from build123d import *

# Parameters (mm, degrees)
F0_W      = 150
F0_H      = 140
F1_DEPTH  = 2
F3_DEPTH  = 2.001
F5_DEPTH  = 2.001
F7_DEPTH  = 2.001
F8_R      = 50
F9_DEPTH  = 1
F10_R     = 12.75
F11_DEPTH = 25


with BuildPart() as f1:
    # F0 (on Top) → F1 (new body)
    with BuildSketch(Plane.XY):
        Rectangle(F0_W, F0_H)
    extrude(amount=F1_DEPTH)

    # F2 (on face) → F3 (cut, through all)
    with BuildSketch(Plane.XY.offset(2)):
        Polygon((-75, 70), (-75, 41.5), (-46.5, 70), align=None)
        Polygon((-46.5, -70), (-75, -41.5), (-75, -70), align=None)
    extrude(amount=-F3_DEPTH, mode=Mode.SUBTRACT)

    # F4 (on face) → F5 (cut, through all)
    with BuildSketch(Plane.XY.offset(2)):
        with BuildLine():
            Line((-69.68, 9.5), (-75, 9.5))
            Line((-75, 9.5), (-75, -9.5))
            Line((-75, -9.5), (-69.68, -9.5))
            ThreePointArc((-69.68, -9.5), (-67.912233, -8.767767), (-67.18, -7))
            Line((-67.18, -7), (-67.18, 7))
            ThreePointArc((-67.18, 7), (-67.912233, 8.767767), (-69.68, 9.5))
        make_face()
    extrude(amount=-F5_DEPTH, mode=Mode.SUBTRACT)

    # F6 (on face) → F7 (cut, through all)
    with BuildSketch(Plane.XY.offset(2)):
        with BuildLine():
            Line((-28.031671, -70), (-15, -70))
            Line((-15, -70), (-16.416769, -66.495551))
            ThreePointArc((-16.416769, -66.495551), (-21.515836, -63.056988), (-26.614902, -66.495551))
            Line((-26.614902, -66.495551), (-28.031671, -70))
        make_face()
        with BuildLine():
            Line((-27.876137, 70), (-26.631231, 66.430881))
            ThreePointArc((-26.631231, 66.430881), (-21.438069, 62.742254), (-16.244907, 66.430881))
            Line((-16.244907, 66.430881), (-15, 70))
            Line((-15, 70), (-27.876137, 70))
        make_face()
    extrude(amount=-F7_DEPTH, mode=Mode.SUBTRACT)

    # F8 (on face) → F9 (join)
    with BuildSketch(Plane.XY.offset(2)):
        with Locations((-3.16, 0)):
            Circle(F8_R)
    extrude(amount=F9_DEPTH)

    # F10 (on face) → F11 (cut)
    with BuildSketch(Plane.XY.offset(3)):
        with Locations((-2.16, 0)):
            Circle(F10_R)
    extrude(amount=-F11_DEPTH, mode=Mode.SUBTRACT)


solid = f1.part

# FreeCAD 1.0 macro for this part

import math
import FreeCAD as App
import Part
import Sketcher

V = App.Vector
Q = App.Units.Quantity


def add_polygon(sketch, points):
    """Adds a closed chain of lines whose ends are joined by coincident constraints."""
    first, n = sketch.GeometryCount, len(points)
    for a, b in zip(points, points[1:] + points[:1]):
        sketch.addGeometry(Part.LineSegment(App.Vector(*a, 0), App.Vector(*b, 0)), False)
    for i in range(n):
        sketch.addConstraint(Sketcher.Constraint("Coincident", first + i, 2, first + (i + 1) % n, 1))

doc = App.newDocument("Part")
params = doc.addObject("Spreadsheet::Sheet", "Params")
for row, (alias, value) in enumerate([
    ("sketch1_width", "150 mm"),
    ("sketch1_height", "140 mm"),
    ("pad1_length", "2 mm"),
    ("sketch2_width", "28.5 mm"),
    ("sketch3_radius", "2.5 mm"),
    ("sketch3_height", "19 mm"),
    ("sketch3_width", "5.32 mm"),
    ("sketch4_radius", "5.5 mm"),
    ("sketch4_length", "3.78 mm"),
    ("sketch5_diameter", "100 mm"),
    ("pad2_length", "1 mm"),
    ("sketch6_diameter", "25.5 mm"),
    ("pocket4_length", "25 mm"),
], start=1):
    params.set(f"A{row}", alias)
    params.set(f"B{row}", "=" + value)
    params.setAlias(f"B{row}", alias)

body = doc.addObject("PartDesign::Body", "Body")

sketch1 = doc.addObject("Sketcher::SketchObject", "Sketch")
body.addObject(sketch1)
sketch1.AttachmentSupport = (doc.XY_Plane, [""])
sketch1.MapMode = "FlatFace"
add_polygon(sketch1, [(-75, 70), (-75, -70), (75, -70), (75, 70)])
sketch1.addConstraint(Sketcher.Constraint("Vertical", 0))
sketch1.addConstraint(Sketcher.Constraint("Horizontal", 1))
sketch1.addConstraint(Sketcher.Constraint("Vertical", 2))
sketch1.addConstraint(Sketcher.Constraint("Horizontal", 3))
sketch1.addConstraint(Sketcher.Constraint("Symmetric", 0, 2, 2, 2, -1, 1))
sketch1.addConstraint(Sketcher.Constraint("DistanceX", 1, 1, 1, 2, Q("150 mm")))
sketch1.addConstraint(Sketcher.Constraint("DistanceY", 0, 2, 0, 1, Q("140 mm")))
sketch1.setExpression("Constraints[9]", "Params.sketch1_width")
sketch1.setExpression("Constraints[10]", "Params.sketch1_height")
pad1 = doc.addObject("PartDesign::Pad", "Pad")
body.addObject(pad1)
pad1.Profile = sketch1
pad1.setExpression("Length", "Params.pad1_length")

sketch2 = doc.addObject("Sketcher::SketchObject", "Sketch001")
body.addObject(sketch2)
sketch2.AttachmentSupport = (doc.XY_Plane, [""])
sketch2.MapMode = "FlatFace"
sketch2.AttachmentOffset = App.Placement(V(0, 0, 2), App.Rotation())
add_polygon(sketch2, [(-75, 70), (-75, 42), (-46, 70)])
add_polygon(sketch2, [(-46, -70), (-75, -42), (-75, -70)])
sketch2.addConstraint(Sketcher.Constraint("Vertical", 0))
sketch2.addConstraint(Sketcher.Constraint("Horizontal", 2))
sketch2.addConstraint(Sketcher.Constraint("Vertical", 4))
sketch2.addConstraint(Sketcher.Constraint("Horizontal", 5))
sketch2.addConstraint(Sketcher.Constraint("Symmetric", 0, 2, 3, 2, -1))
sketch2.addConstraint(Sketcher.Constraint("Symmetric", 1, 2, 5, 2, -1))
sketch2.addConstraint(Sketcher.Constraint("Perpendicular", 1, 3))
sketch2.addConstraint(Sketcher.Constraint("DistanceX", 2, 2, 2, 1, Q("28.5 mm")))
sketch2.addConstraint(Sketcher.Constraint("DistanceX", 0, 2, -1, 1, Q("75 mm")))
sketch2.addConstraint(Sketcher.Constraint("DistanceY", -1, 1, 1, 2, Q("70 mm")))
sketch2.setExpression("Constraints[13]", "Params.sketch2_width")
pocket1 = doc.addObject("PartDesign::Pocket", "Pocket")
body.addObject(pocket1)
pocket1.Profile = sketch2
pocket1.Type = "ThroughAll"

sketch3 = doc.addObject("Sketcher::SketchObject", "Sketch002")
body.addObject(sketch3)
sketch3.AttachmentSupport = (doc.XY_Plane, [""])
sketch3.MapMode = "FlatFace"
sketch3.AttachmentOffset = App.Placement(V(0, 0, 2), App.Rotation())
sketch3.addGeometry(Part.LineSegment(V(-69.7, 9.5, 0), V(-75, 9.5, 0)), False)
sketch3.addGeometry(Part.LineSegment(V(-75, 9.5, 0), V(-75, -9.5, 0)), False)
sketch3.addGeometry(Part.LineSegment(V(-75, -9.5, 0), V(-69.7, -9.5, 0)), False)
sketch3.addGeometry(Part.ArcOfCircle(Part.Circle(V(-69.7, -7, 0), V(0, 0, 1), 2.5), math.radians(-90), math.radians(0)), False)
sketch3.addGeometry(Part.LineSegment(V(-67.2, -7, 0), V(-67.2, 7, 0)), False)
sketch3.addGeometry(Part.ArcOfCircle(Part.Circle(V(-69.7, 7, 0), V(0, 0, 1), 2.5), math.radians(0), math.radians(90)), False)
sketch3.addConstraint(Sketcher.Constraint("Coincident", 0, 2, 1, 1))
sketch3.addConstraint(Sketcher.Constraint("Coincident", 1, 2, 2, 1))
sketch3.addConstraint(Sketcher.Constraint("Tangent", 2, 2, 3, 1))
sketch3.addConstraint(Sketcher.Constraint("Tangent", 3, 2, 4, 1))
sketch3.addConstraint(Sketcher.Constraint("Tangent", 4, 2, 5, 1))
sketch3.addConstraint(Sketcher.Constraint("Tangent", 5, 2, 0, 1))
sketch3.addConstraint(Sketcher.Constraint("Horizontal", 0))
sketch3.addConstraint(Sketcher.Constraint("Vertical", 1))
sketch3.addConstraint(Sketcher.Constraint("Horizontal", 2))
sketch3.addConstraint(Sketcher.Constraint("Vertical", 4))
sketch3.addConstraint(Sketcher.Constraint("Equal", 3, 5))
sketch3.addConstraint(Sketcher.Constraint("Radius", 3, Q("2.5 mm")))
sketch3.addConstraint(Sketcher.Constraint("DistanceY", 1, 2, 1, 1, Q("19 mm")))
sketch3.addConstraint(Sketcher.Constraint("DistanceY", 3, 3, -1, 1, Q("7 mm")))
sketch3.addConstraint(Sketcher.Constraint("DistanceX", 0, 2, -1, 1, Q("75 mm")))
sketch3.addConstraint(Sketcher.Constraint("DistanceX", 0, 2, 0, 1, Q("5.32 mm")))
sketch3.setExpression("Constraints[11]", "Params.sketch3_radius")
sketch3.setExpression("Constraints[12]", "Params.sketch3_height")
sketch3.setExpression("Constraints[15]", "Params.sketch3_width")
pocket2 = doc.addObject("PartDesign::Pocket", "Pocket001")
body.addObject(pocket2)
pocket2.Profile = sketch3
pocket2.Type = "ThroughAll"

sketch4 = doc.addObject("Sketcher::SketchObject", "Sketch003")
body.addObject(sketch4)
sketch4.AttachmentSupport = (doc.XY_Plane, [""])
sketch4.MapMode = "FlatFace"
sketch4.AttachmentOffset = App.Placement(V(0, 0, 2), App.Rotation())
sketch4.addGeometry(Part.LineSegment(V(-28, -70, 0), V(-15, -70, 0)), False)
sketch4.addGeometry(Part.LineSegment(V(-15, -70, 0), V(-16.4, -66.5, 0)), False)
sketch4.addGeometry(Part.ArcOfCircle(Part.Circle(V(-21.5, -68.6, 0), V(0, 0, 1), 5.5), math.radians(22), math.radians(158)), False)
sketch4.addGeometry(Part.LineSegment(V(-26.6, -66.5, 0), V(-28, -70, 0)), False)
sketch4.addGeometry(Part.LineSegment(V(-27.9, 70, 0), V(-26.6, 66.4, 0)), False)
sketch4.addGeometry(Part.ArcOfCircle(Part.Circle(V(-21.4, 68.2, 0), V(0, 0, 1), 5.5), math.radians(-161), math.radians(-19)), False)
sketch4.addGeometry(Part.LineSegment(V(-16.2, 66.4, 0), V(-15, 70, 0)), False)
sketch4.addGeometry(Part.LineSegment(V(-15, 70, 0), V(-27.9, 70, 0)), False)
sketch4.addConstraint(Sketcher.Constraint("Coincident", 0, 2, 1, 1))
sketch4.addConstraint(Sketcher.Constraint("Tangent", 1, 2, 2, 1))
sketch4.addConstraint(Sketcher.Constraint("Tangent", 2, 2, 3, 1))
sketch4.addConstraint(Sketcher.Constraint("Coincident", 3, 2, 0, 1))
sketch4.addConstraint(Sketcher.Constraint("Tangent", 4, 2, 5, 1))
sketch4.addConstraint(Sketcher.Constraint("Tangent", 5, 2, 6, 1))
sketch4.addConstraint(Sketcher.Constraint("Coincident", 6, 2, 7, 1))
sketch4.addConstraint(Sketcher.Constraint("Coincident", 7, 2, 4, 1))
sketch4.addConstraint(Sketcher.Constraint("Horizontal", 0))
sketch4.addConstraint(Sketcher.Constraint("Horizontal", 7))
sketch4.addConstraint(Sketcher.Constraint("Equal", 2, 5))
sketch4.addConstraint(Sketcher.Constraint("Symmetric", 0, 2, 6, 2, -1))
sketch4.addConstraint(Sketcher.Constraint("Horizontal", 1, 2, 2, 2))
sketch4.addConstraint(Sketcher.Constraint("Horizontal", 4, 2, 5, 2))
sketch4.addConstraint(Sketcher.Constraint("Equal", 3, 4))
sketch4.addConstraint(Sketcher.Constraint("Radius", 2, Q("5.5 mm")))
sketch4.addConstraint(Sketcher.Constraint("DistanceX", 0, 2, -1, 1, Q("15 mm")))
sketch4.addConstraint(Sketcher.Constraint("DistanceY", 0, 2, -1, 1, Q("70 mm")))
sketch4.addConstraint(Sketcher.Constraint("Distance", 1, Q("3.78 mm")))
sketch4.addConstraint(Sketcher.Constraint("DistanceX", 0, 1, 0, 2, Q("13.031671 mm")))
sketch4.addConstraint(Sketcher.Constraint("DistanceX", 5, 3, 1, 2, Q("5.0213 mm")))
sketch4.setExpression("Constraints[15]", "Params.sketch4_radius")
sketch4.setExpression("Constraints[18]", "Params.sketch4_length")
pocket3 = doc.addObject("PartDesign::Pocket", "Pocket002")
body.addObject(pocket3)
pocket3.Profile = sketch4
pocket3.Type = "ThroughAll"

sketch5 = doc.addObject("Sketcher::SketchObject", "Sketch004")
body.addObject(sketch5)
sketch5.AttachmentSupport = (doc.XY_Plane, [""])
sketch5.MapMode = "FlatFace"
sketch5.AttachmentOffset = App.Placement(V(0, 0, 2), App.Rotation())
sketch5.addGeometry(Part.Circle(V(-3, 0, 0), V(0, 0, 1), 50), False)
sketch5.addConstraint(Sketcher.Constraint("PointOnObject", 0, 3, -1))
sketch5.addConstraint(Sketcher.Constraint("Diameter", 0, Q("100 mm")))
sketch5.addConstraint(Sketcher.Constraint("DistanceX", 0, 3, -1, 1, Q("3.16 mm")))
sketch5.setExpression("Constraints[1]", "Params.sketch5_diameter")
pad2 = doc.addObject("PartDesign::Pad", "Pad001")
body.addObject(pad2)
pad2.Profile = sketch5
pad2.setExpression("Length", "Params.pad2_length")

sketch6 = doc.addObject("Sketcher::SketchObject", "Sketch005")
body.addObject(sketch6)
sketch6.AttachmentSupport = (doc.XY_Plane, [""])
sketch6.MapMode = "FlatFace"
sketch6.AttachmentOffset = App.Placement(V(0, 0, 3), App.Rotation())
sketch6.addGeometry(Part.Circle(V(-2, 0, 0), V(0, 0, 1), 13), False)
sketch6.addConstraint(Sketcher.Constraint("PointOnObject", 0, 3, -1))
sketch6.addConstraint(Sketcher.Constraint("Diameter", 0, Q("25.5 mm")))
sketch6.addConstraint(Sketcher.Constraint("DistanceX", 0, 3, -1, 1, Q("2.16 mm")))
sketch6.setExpression("Constraints[1]", "Params.sketch6_diameter")
pocket4 = doc.addObject("PartDesign::Pocket", "Pocket003")
body.addObject(pocket4)
pocket4.Profile = sketch6
pocket4.setExpression("Length", "Params.pocket4_length")

doc.recompute()
